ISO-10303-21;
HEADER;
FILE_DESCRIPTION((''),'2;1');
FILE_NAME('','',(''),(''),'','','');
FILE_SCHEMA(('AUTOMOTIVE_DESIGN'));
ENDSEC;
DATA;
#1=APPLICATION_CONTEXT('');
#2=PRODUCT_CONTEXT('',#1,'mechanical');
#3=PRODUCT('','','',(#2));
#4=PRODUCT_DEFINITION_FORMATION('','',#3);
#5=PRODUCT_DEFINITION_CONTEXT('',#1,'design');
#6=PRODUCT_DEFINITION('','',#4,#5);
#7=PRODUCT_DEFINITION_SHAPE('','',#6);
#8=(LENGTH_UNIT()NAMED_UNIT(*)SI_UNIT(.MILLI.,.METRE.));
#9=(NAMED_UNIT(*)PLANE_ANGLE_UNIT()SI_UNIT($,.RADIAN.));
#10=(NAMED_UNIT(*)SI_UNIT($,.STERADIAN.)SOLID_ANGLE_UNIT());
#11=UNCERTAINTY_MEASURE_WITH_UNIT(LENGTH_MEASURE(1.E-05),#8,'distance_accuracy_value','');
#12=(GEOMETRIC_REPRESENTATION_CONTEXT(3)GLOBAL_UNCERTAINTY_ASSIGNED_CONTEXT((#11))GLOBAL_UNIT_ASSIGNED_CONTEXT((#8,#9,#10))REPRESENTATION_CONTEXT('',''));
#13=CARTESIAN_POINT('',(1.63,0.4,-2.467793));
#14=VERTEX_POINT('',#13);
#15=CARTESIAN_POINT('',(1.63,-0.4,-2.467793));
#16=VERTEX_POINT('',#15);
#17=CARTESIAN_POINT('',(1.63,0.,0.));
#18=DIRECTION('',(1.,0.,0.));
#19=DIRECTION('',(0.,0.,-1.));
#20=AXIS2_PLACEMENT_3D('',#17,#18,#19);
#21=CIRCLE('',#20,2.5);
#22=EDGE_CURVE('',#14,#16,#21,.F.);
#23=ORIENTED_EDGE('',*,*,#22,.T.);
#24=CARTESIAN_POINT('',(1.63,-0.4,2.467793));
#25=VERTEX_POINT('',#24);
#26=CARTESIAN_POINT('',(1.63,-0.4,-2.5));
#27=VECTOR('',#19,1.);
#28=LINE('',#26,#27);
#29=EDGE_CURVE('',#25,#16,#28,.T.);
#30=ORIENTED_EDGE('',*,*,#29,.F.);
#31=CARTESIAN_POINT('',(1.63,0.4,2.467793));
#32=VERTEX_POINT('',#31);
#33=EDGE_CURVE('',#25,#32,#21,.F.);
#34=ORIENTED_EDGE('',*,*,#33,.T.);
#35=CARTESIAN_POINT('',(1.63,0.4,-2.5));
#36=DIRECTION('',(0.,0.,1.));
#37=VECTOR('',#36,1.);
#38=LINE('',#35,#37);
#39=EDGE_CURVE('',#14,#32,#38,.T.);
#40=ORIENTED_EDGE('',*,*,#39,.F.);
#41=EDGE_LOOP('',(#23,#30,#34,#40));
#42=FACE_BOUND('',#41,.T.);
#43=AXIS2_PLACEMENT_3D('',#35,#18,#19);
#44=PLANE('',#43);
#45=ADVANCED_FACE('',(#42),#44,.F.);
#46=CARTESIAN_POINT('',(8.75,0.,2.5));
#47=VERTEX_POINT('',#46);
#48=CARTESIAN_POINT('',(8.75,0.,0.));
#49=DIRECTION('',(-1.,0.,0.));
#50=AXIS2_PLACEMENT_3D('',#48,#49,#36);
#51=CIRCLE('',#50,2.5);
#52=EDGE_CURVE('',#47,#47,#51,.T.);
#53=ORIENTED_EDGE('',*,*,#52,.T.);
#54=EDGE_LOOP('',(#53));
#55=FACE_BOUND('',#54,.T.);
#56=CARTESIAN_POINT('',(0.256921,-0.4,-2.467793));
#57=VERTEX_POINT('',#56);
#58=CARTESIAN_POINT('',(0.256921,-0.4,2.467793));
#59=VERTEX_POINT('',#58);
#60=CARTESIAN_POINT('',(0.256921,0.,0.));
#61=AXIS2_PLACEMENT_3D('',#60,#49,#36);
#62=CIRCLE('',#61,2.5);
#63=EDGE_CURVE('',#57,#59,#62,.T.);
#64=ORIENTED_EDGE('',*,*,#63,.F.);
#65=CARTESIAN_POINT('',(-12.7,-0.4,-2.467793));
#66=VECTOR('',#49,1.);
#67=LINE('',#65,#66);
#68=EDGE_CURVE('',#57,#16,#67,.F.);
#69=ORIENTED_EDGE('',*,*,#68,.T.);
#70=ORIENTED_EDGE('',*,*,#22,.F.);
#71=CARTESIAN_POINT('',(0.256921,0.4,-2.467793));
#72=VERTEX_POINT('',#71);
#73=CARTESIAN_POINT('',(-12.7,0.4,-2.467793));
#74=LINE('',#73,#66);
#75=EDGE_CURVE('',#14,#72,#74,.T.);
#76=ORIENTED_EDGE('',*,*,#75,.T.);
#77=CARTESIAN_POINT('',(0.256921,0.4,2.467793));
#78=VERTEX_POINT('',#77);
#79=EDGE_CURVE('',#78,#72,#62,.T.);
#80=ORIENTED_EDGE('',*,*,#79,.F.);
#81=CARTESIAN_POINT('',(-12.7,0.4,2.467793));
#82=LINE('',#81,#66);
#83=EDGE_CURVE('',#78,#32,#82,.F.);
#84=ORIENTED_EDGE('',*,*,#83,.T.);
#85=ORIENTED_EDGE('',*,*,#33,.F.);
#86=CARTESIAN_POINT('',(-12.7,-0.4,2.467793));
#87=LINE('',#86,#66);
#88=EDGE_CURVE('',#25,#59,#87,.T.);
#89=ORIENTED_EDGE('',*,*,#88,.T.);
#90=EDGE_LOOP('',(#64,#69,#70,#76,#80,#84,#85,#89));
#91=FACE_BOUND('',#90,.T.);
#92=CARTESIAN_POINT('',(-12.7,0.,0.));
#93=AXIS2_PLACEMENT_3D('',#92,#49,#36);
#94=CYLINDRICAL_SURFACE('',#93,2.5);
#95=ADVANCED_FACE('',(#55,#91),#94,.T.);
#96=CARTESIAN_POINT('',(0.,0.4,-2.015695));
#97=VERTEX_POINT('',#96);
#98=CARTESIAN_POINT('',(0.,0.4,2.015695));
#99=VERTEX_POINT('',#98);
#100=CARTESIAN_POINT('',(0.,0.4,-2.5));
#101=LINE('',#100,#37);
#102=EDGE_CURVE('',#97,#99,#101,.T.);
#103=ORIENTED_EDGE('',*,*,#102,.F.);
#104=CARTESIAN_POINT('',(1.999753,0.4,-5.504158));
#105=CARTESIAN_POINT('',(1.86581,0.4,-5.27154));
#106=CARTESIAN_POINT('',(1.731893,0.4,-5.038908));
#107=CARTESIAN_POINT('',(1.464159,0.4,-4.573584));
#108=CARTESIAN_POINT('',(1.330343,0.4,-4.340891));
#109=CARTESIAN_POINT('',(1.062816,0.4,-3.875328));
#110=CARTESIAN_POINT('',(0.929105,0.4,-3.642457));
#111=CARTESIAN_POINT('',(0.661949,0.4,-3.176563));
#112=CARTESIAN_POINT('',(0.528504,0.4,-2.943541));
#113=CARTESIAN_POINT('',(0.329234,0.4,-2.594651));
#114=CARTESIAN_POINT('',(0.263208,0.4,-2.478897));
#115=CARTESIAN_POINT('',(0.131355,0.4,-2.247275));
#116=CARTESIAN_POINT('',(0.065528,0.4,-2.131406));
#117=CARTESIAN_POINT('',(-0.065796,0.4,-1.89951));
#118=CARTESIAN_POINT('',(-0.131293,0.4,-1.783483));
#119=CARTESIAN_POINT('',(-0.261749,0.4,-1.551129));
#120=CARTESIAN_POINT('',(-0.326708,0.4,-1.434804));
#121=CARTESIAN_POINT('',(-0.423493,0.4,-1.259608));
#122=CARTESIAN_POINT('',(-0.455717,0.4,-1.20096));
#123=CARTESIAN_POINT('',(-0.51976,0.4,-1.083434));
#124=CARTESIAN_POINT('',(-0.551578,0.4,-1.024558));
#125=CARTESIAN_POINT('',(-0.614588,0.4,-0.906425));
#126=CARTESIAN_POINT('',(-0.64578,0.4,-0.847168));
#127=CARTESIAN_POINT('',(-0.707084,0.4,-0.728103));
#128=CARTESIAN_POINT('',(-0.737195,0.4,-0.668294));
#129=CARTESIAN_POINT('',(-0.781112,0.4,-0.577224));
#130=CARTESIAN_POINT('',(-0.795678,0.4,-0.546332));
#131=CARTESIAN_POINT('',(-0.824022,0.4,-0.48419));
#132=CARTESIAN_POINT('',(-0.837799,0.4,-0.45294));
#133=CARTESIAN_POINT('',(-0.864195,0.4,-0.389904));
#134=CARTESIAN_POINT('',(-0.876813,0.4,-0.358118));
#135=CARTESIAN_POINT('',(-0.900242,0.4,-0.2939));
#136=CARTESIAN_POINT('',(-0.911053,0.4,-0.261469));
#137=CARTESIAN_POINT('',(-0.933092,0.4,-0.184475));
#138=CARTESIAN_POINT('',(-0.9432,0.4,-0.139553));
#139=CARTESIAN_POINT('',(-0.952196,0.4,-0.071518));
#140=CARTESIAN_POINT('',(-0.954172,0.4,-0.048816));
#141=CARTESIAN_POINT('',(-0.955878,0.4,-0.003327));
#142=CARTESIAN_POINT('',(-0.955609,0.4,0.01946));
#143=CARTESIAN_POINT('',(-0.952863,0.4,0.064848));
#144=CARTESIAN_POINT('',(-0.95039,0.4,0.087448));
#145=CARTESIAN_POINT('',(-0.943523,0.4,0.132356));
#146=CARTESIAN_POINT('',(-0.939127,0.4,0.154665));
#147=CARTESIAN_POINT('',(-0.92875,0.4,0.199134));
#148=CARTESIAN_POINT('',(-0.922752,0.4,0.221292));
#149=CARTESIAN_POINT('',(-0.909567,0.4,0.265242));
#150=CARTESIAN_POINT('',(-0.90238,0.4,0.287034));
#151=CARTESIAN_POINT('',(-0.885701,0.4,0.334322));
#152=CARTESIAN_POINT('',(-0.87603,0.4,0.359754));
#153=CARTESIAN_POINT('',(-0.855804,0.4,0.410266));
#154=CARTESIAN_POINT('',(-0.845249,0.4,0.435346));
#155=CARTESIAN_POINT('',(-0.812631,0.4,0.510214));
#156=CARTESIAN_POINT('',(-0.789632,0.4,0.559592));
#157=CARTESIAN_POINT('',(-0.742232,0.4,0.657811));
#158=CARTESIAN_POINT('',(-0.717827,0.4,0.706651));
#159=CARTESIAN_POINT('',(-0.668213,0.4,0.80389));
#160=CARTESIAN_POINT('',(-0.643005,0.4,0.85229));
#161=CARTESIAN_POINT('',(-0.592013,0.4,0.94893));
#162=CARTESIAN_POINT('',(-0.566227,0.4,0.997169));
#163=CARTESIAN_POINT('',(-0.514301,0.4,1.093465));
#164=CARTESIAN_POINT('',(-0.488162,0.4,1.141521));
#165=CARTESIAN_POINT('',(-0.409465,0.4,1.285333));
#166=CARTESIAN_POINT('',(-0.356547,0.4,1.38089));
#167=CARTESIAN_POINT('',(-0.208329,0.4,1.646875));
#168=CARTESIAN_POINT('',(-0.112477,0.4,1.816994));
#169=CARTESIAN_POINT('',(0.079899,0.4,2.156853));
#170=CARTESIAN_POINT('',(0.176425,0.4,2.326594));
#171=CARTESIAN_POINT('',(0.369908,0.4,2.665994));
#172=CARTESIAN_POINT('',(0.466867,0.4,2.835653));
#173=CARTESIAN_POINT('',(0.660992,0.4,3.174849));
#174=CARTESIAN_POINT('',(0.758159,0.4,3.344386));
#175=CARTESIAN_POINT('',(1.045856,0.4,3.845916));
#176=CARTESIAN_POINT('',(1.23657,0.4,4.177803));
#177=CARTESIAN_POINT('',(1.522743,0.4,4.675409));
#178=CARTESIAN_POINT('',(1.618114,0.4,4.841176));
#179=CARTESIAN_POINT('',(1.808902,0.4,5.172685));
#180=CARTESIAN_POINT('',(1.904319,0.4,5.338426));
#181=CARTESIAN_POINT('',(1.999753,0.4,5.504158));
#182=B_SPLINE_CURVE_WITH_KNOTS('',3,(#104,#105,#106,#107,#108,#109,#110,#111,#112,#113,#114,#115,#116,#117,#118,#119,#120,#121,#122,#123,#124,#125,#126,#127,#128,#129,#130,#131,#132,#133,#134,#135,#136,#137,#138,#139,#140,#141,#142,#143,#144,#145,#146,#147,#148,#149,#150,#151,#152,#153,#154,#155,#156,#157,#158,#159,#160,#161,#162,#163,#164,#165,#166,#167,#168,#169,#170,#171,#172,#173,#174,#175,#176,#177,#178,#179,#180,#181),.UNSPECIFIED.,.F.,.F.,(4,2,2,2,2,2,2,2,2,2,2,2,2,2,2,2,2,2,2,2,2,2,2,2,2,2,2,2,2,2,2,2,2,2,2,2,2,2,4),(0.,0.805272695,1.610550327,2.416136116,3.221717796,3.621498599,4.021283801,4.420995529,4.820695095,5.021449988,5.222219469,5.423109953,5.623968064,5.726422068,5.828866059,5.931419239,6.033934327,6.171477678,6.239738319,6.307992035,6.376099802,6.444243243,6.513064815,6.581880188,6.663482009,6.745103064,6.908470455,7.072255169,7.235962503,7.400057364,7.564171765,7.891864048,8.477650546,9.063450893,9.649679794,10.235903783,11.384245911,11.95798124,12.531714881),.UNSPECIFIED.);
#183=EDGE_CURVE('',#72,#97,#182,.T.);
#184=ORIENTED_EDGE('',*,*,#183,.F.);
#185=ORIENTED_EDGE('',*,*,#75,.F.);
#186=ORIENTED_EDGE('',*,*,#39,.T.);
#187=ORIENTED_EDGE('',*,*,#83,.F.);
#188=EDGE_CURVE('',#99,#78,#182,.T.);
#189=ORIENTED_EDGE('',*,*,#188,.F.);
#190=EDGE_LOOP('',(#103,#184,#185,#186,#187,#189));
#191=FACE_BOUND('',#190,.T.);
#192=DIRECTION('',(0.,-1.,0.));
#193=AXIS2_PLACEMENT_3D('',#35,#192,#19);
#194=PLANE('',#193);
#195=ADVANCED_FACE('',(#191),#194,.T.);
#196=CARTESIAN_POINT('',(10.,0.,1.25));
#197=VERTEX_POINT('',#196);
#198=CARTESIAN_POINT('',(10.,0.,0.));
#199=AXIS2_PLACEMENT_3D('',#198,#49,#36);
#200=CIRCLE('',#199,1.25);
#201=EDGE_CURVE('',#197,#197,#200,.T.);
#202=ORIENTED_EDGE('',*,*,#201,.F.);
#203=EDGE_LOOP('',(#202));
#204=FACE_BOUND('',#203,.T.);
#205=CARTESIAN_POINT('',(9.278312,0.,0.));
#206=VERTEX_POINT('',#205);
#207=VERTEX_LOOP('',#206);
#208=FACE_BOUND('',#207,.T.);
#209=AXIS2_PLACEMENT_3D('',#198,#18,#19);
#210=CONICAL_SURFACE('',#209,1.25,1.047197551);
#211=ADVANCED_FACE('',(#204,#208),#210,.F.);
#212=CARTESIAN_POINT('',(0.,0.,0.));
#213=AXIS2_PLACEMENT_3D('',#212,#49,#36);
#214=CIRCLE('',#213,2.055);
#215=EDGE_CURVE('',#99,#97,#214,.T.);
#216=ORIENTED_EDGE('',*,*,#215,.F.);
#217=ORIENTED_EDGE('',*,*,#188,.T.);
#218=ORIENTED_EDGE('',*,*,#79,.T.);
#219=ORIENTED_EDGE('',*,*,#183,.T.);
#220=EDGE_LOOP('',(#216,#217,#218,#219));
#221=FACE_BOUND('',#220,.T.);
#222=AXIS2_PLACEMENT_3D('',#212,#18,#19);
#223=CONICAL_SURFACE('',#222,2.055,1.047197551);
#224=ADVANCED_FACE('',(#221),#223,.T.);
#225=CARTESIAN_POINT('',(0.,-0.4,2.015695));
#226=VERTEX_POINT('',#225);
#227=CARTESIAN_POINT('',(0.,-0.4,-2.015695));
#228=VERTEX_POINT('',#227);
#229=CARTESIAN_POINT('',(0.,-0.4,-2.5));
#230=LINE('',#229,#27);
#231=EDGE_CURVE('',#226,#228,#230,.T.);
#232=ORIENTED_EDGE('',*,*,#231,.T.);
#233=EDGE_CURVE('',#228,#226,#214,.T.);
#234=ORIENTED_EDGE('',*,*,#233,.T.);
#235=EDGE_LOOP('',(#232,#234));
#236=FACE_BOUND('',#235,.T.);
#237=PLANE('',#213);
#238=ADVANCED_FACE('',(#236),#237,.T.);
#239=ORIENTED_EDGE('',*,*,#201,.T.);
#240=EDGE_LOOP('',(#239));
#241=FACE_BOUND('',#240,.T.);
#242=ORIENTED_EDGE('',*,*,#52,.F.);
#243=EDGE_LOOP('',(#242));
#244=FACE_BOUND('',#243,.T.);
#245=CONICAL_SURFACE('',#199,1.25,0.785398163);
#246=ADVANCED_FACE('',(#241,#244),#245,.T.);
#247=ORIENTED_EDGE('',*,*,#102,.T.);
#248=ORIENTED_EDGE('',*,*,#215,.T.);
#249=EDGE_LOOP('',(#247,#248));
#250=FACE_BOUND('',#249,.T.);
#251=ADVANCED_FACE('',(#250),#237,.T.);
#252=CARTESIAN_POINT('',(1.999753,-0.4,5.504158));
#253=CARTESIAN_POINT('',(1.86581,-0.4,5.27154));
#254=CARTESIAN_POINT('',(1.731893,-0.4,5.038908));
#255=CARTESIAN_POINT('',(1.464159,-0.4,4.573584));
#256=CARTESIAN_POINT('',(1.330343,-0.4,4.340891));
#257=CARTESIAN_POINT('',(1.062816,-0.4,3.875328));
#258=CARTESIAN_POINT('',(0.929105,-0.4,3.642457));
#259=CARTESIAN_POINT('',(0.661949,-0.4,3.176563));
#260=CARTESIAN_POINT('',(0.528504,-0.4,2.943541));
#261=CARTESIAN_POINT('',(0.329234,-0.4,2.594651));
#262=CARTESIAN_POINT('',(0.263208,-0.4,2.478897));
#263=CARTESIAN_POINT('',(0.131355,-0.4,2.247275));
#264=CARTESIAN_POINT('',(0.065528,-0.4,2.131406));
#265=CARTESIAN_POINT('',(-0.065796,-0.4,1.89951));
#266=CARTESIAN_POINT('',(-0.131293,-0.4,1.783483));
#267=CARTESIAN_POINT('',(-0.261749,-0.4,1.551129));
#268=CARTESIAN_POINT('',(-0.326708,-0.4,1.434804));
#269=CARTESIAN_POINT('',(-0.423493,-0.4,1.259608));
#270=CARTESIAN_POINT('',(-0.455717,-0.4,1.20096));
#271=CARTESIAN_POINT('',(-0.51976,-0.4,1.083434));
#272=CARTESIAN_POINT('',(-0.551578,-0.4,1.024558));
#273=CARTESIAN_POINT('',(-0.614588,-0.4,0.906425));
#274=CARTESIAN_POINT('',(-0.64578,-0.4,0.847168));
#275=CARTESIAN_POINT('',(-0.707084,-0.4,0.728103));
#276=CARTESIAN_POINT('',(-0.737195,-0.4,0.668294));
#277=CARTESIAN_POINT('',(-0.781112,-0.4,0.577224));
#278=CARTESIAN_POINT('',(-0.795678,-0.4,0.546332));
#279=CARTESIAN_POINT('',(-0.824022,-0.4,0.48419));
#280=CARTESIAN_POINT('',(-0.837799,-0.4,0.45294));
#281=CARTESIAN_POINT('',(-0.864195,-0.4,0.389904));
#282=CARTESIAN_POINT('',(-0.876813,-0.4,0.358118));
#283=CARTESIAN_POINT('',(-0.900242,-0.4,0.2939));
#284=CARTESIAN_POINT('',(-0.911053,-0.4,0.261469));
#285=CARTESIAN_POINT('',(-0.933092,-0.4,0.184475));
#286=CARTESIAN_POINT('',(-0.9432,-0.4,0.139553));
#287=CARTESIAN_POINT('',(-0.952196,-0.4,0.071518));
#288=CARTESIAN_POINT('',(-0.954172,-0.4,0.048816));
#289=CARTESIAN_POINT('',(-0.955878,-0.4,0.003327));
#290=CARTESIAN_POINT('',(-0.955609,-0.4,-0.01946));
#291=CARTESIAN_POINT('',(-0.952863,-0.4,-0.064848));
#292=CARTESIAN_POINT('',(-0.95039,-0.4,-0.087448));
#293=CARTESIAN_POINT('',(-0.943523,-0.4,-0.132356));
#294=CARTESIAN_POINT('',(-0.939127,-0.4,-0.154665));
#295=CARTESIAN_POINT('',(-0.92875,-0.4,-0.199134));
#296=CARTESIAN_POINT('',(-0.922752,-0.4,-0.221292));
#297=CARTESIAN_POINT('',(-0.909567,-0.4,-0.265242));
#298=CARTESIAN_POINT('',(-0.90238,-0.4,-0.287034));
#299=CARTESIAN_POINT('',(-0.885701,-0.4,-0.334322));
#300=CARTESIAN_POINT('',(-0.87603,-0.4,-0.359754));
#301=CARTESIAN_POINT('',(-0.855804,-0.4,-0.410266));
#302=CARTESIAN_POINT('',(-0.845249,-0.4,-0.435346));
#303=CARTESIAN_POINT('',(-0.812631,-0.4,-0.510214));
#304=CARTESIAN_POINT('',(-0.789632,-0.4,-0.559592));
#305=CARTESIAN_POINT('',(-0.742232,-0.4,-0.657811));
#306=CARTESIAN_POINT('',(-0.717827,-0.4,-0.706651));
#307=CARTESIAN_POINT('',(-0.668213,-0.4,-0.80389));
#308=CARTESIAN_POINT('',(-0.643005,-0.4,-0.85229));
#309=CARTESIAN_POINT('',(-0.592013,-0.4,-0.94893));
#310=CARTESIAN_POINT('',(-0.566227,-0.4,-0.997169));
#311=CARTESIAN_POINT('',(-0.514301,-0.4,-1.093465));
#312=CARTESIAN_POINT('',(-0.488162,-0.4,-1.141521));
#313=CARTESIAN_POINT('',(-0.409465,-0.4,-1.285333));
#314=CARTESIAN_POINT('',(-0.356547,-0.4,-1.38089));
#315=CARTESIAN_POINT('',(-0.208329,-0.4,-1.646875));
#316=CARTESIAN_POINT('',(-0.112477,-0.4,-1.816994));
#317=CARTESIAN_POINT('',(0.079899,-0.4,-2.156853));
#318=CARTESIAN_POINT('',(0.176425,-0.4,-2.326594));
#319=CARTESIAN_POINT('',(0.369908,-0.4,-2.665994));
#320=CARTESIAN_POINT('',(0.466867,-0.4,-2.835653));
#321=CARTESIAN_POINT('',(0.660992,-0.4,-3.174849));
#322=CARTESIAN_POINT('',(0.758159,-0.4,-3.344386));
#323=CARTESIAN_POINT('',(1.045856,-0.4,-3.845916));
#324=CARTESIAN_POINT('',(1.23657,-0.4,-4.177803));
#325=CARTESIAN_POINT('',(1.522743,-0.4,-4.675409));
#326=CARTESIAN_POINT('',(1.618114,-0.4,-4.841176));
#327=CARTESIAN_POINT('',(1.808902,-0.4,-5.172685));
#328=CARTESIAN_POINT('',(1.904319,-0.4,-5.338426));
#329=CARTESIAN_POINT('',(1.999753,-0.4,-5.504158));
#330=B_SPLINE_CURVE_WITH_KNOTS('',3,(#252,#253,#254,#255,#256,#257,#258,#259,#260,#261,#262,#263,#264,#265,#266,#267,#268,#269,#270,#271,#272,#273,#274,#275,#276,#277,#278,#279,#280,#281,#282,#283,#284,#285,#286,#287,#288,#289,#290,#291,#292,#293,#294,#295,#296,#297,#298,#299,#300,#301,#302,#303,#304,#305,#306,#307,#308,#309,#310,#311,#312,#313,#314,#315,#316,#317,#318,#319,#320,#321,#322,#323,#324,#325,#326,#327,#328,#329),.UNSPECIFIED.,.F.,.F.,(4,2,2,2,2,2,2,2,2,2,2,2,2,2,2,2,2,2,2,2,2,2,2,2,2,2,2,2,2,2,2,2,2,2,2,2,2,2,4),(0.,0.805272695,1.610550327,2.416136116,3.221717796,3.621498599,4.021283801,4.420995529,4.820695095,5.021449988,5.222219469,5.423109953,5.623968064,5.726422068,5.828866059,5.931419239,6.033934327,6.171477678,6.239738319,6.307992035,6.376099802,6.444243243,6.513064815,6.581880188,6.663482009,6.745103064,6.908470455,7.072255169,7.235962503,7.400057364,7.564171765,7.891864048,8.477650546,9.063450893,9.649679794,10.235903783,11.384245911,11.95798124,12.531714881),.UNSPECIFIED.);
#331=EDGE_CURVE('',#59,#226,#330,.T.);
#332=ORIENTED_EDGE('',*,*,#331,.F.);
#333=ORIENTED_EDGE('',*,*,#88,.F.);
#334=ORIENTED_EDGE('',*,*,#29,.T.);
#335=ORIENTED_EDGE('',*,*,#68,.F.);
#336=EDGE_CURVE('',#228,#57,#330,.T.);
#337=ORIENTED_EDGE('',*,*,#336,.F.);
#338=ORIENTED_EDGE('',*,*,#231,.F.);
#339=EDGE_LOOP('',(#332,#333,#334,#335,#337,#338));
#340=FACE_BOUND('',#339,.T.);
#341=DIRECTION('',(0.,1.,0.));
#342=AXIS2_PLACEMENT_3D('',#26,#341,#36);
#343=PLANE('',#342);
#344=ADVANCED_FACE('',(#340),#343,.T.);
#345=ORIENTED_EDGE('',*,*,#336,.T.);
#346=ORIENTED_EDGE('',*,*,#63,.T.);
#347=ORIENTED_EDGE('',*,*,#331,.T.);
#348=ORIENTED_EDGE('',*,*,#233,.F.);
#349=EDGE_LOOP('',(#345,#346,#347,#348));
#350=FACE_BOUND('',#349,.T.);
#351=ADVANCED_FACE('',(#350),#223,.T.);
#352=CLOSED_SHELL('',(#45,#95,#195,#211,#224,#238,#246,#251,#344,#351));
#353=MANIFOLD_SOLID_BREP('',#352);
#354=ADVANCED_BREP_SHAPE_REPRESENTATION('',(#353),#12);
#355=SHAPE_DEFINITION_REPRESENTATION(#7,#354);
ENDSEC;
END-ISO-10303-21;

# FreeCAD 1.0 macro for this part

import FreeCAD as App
import Part
import Sketcher
Q = App.Units.Quantity


def add_polygon(sketch, points):
    """Adds a closed chain of lines whose ends are joined by coincident constraints."""
    first, n = sketch.GeometryCount, len(points)
    for a, b in zip(points, points[1:] + points[:1]):
        sketch.addGeometry(Part.LineSegment(App.Vector(*a, 0), App.Vector(*b, 0)), False)
    for i in range(n):
        sketch.addConstraint(Sketcher.Constraint("Coincident", first + i, 2, first + (i + 1) % n, 1))

doc = App.newDocument("Part")
body = doc.addObject("PartDesign::Body", "Body")

# Sketch on XY plane
sketch1 = body.newObject("Sketcher::SketchObject", "Sketch")
sketch1.AttachmentSupport = (doc.getObject("XY_Plane"), [""])
sketch1.MapMode = "FlatFace"
add_polygon(sketch1, [(9.3, 0), (10, 1.2), (8.8, 2.5), (0.3, 2.5), (0, 2.1), (0, 0)])  # lines 0-5
sketch1.addConstraint([
    Sketcher.Constraint("Horizontal", 2),
    Sketcher.Constraint("Vertical", 4),
    Sketcher.Constraint("Horizontal", 5),
    Sketcher.Constraint("Coincident", 4, 2, -1, 1),
    Sketcher.Constraint("Parallel", 0, 3),
    Sketcher.Constraint("Angle", 0, Q("60 deg")),
    Sketcher.Constraint("Angle", 1, Q("135 deg")),
    Sketcher.Constraint("DistanceX", -1, 1, 0, 2, 10.0),
    Sketcher.Constraint("DistanceY", -1, 1, 1, 2, 2.5),
    Sketcher.Constraint("DistanceY", 4, 2, 4, 1, 2.055),
    Sketcher.Constraint("DistanceY", -1, 1, 0, 2, 1.25),
])
revolution = body.newObject("PartDesign::Revolution", "Revolution")
revolution.Profile = sketch1
revolution.ReferenceAxis = (sketch1, ["H_Axis"])
revolution.Angle = 360

# Sketch on YZ plane
sketch2 = body.newObject("Sketcher::SketchObject", "Sketch001")
sketch2.AttachmentSupport = (doc.getObject("YZ_Plane"), [""])
sketch2.MapMode = "FlatFace"
add_polygon(sketch2, [(0.4, 2.5), (-0.4, 2.5), (-0.4, -2.5), (0.4, -2.5)])  # lines 0-3
sketch2.addConstraint([
    Sketcher.Constraint("Horizontal", 0),
    Sketcher.Constraint("Vertical", 1),
    Sketcher.Constraint("Horizontal", 2),
    Sketcher.Constraint("Vertical", 3),
    Sketcher.Constraint("Symmetric", 0, 2, 2, 2, -1, 1),
    Sketcher.Constraint("DistanceY", 1, 2, 1, 1, 5.0),
    Sketcher.Constraint("DistanceX", 0, 2, 0, 1, 0.8),
])
pocket1 = body.newObject("PartDesign::Pocket", "Pocket")
pocket1.Profile = sketch2
pocket1.Length = 1.63
pocket1.Reversed = True

doc.recompute()
